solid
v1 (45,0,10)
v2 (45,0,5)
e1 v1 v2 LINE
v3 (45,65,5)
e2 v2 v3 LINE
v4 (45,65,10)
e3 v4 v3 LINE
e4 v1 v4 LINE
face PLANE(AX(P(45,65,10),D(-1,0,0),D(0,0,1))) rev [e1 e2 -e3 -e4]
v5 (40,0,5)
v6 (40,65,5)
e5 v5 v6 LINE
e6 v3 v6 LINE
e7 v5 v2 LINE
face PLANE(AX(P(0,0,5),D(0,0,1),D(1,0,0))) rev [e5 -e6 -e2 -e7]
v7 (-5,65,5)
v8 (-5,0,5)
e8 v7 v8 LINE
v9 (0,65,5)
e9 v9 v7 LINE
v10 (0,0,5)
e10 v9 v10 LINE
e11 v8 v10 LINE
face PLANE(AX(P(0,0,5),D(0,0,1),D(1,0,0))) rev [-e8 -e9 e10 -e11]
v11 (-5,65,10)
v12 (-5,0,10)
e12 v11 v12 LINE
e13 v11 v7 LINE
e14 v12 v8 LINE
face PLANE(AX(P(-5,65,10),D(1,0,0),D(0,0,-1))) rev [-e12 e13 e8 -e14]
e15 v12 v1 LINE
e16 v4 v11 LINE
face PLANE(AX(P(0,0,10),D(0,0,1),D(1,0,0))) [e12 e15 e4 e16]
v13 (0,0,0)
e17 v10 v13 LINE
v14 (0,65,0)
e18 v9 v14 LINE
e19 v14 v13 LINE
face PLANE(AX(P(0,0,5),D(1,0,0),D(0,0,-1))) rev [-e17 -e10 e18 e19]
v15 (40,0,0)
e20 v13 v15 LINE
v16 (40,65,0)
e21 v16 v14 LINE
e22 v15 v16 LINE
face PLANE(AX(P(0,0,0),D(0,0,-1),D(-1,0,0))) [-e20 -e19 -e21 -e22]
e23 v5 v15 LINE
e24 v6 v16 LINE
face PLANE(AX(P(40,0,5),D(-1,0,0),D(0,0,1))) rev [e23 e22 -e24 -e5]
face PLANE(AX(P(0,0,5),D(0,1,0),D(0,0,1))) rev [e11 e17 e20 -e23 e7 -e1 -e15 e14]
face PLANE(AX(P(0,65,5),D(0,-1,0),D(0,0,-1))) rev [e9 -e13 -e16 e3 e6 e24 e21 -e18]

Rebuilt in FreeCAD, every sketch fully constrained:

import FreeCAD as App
import Part
import Sketcher
from FreeCAD import Vector


def add_polygon(sketch, points):
    """Adds a closed chain of lines whose ends are joined by coincident constraints."""
    first, n = sketch.GeometryCount, len(points)
    for a, b in zip(points, points[1:] + points[:1]):
        sketch.addGeometry(Part.LineSegment(App.Vector(*a, 0), App.Vector(*b, 0)), False)
    for i in range(n):
        sketch.addConstraint(Sketcher.Constraint("Coincident", first + i, 2, first + (i + 1) % n, 1))

doc = App.newDocument("Part")
body = doc.addObject("PartDesign::Body", "Body")

# Sketch on XY plane
sketch1 = body.newObject("Sketcher::SketchObject", "Sketch")
sketch1.AttachmentSupport = (doc.getObject("XY_Plane"), [""])
sketch1.MapMode = "FlatFace"
add_polygon(sketch1, [(0, 65), (0, 0), (40, 0), (40, 65)])  # lines 0-3
sketch1.addConstraint([
    Sketcher.Constraint("Vertical", 0),
    Sketcher.Constraint("Horizontal", 1),
    Sketcher.Constraint("Vertical", 2),
    Sketcher.Constraint("Horizontal", 3),
    Sketcher.Constraint("Coincident", 0, 2, -1, 1),
    Sketcher.Constraint("DistanceX", 1, 1, 1, 2, 40.0),
    Sketcher.Constraint("DistanceY", 0, 2, 0, 1, 65.0),
])
pad1 = body.newObject("PartDesign::Pad", "Pad")
pad1.Profile = sketch1
pad1.Length = 5

# Sketch on XY plane
sketch2 = body.newObject("Sketcher::SketchObject", "Sketch001")
sketch2.AttachmentSupport = (doc.getObject("XY_Plane"), [""])
sketch2.MapMode = "FlatFace"
sketch2.AttachmentOffset = App.Placement(Vector(0, 0, 5), App.Rotation())
add_polygon(sketch2, [(-5, 65), (-5, 0), (45, 0), (45, 65)])  # lines 0-3
sketch2.addConstraint([
    Sketcher.Constraint("Vertical", 0),
    Sketcher.Constraint("Horizontal", 1),
    Sketcher.Constraint("Vertical", 2),
    Sketcher.Constraint("Horizontal", 3),
    Sketcher.Constraint("PointOnObject", 0, 2, -1),
    Sketcher.Constraint("DistanceX", 1, 1, 1, 2, 50.0),
    Sketcher.Constraint("DistanceY", 0, 2, 0, 1, 65.0),
    Sketcher.Constraint("DistanceX", 0, 2, -1, 1, 5.0),
])
pad2 = body.newObject("PartDesign::Pad", "Pad001")
pad2.Profile = sketch2
pad2.Length = 5

doc.recompute()
